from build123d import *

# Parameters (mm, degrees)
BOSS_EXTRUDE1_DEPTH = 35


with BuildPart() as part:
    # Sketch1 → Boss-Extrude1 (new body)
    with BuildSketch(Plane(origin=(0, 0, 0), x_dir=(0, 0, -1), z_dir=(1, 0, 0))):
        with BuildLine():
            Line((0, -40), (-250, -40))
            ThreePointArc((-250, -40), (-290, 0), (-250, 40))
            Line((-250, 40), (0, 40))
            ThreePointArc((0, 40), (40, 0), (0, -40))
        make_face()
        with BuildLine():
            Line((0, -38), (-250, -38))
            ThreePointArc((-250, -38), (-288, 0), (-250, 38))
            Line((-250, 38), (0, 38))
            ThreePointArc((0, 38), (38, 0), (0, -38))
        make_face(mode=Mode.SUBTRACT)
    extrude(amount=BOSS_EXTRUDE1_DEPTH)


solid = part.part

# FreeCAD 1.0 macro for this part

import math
import FreeCAD as App
import Part
import Sketcher
Q = App.Units.Quantity

doc = App.newDocument("Part")
body = doc.addObject("PartDesign::Body", "Body")

# Sketch on YZ plane
sketch1 = body.newObject("Sketcher::SketchObject", "Sketch")
sketch1.AttachmentSupport = (doc.getObject("YZ_Plane"), [""])
sketch1.MapMode = "FlatFace"
sketch1.addGeometry([
    Part.LineSegment(App.Vector(-40, 250, 0), App.Vector(-40, 0, 0)),  # 0
    Part.ArcOfCircle(Part.Circle(App.Vector(0, 0, 0), App.Vector(0, 0, 1), 40), math.radians(180), math.radians(360)),  # 1
    Part.LineSegment(App.Vector(40, 0, 0), App.Vector(40, 250, 0)),  # 2
    Part.ArcOfCircle(Part.Circle(App.Vector(0, 250, 0), App.Vector(0, 0, 1), 40), math.radians(0), math.radians(180)),  # 3
    Part.LineSegment(App.Vector(-38, 0, 0), App.Vector(-38, 250, 0)),  # 4
    Part.ArcOfCircle(Part.Circle(App.Vector(0, 250, 0), App.Vector(0, 0, 1), 38), math.radians(0), math.radians(180)),  # 5
    Part.LineSegment(App.Vector(38, 250, 0), App.Vector(38, 0, 0)),  # 6
    Part.ArcOfCircle(Part.Circle(App.Vector(0, 0, 0), App.Vector(0, 0, 1), 38), math.radians(180), math.radians(360)),  # 7
], False)
sketch1.addConstraint([
    Sketcher.Constraint("Tangent", 0, 2, 1, 1),
    Sketcher.Constraint("Tangent", 1, 2, 2, 1),
    Sketcher.Constraint("Tangent", 2, 2, 3, 1),
    Sketcher.Constraint("Tangent", 3, 2, 0, 1),
    Sketcher.Constraint("Tangent", 4, 2, 5, 2),
    Sketcher.Constraint("Tangent", 5, 1, 6, 1),
    Sketcher.Constraint("Tangent", 6, 2, 7, 2),
    Sketcher.Constraint("Tangent", 7, 1, 4, 1),
    Sketcher.Constraint("Vertical", 0),
    Sketcher.Constraint("Vertical", 2),
    Sketcher.Constraint("Vertical", 4),
    Sketcher.Constraint("Vertical", 6),
    Sketcher.Constraint("Coincident", 1, 3, -1, 1),
    Sketcher.Constraint("Coincident", 7, 3, -1, 1),
    Sketcher.Constraint("Horizontal", 5, 3, 2, 2),
    Sketcher.Constraint("Radius", 1, Q("40 mm")),
    Sketcher.Constraint("Radius", 5, Q("38 mm")),
    Sketcher.Constraint("DistanceY", 0, 2, 0, 1, Q("250 mm")),
])
pad1 = body.newObject("PartDesign::Pad", "Pad")
pad1.Profile = sketch1
pad1.Length = 35

doc.recompute()
